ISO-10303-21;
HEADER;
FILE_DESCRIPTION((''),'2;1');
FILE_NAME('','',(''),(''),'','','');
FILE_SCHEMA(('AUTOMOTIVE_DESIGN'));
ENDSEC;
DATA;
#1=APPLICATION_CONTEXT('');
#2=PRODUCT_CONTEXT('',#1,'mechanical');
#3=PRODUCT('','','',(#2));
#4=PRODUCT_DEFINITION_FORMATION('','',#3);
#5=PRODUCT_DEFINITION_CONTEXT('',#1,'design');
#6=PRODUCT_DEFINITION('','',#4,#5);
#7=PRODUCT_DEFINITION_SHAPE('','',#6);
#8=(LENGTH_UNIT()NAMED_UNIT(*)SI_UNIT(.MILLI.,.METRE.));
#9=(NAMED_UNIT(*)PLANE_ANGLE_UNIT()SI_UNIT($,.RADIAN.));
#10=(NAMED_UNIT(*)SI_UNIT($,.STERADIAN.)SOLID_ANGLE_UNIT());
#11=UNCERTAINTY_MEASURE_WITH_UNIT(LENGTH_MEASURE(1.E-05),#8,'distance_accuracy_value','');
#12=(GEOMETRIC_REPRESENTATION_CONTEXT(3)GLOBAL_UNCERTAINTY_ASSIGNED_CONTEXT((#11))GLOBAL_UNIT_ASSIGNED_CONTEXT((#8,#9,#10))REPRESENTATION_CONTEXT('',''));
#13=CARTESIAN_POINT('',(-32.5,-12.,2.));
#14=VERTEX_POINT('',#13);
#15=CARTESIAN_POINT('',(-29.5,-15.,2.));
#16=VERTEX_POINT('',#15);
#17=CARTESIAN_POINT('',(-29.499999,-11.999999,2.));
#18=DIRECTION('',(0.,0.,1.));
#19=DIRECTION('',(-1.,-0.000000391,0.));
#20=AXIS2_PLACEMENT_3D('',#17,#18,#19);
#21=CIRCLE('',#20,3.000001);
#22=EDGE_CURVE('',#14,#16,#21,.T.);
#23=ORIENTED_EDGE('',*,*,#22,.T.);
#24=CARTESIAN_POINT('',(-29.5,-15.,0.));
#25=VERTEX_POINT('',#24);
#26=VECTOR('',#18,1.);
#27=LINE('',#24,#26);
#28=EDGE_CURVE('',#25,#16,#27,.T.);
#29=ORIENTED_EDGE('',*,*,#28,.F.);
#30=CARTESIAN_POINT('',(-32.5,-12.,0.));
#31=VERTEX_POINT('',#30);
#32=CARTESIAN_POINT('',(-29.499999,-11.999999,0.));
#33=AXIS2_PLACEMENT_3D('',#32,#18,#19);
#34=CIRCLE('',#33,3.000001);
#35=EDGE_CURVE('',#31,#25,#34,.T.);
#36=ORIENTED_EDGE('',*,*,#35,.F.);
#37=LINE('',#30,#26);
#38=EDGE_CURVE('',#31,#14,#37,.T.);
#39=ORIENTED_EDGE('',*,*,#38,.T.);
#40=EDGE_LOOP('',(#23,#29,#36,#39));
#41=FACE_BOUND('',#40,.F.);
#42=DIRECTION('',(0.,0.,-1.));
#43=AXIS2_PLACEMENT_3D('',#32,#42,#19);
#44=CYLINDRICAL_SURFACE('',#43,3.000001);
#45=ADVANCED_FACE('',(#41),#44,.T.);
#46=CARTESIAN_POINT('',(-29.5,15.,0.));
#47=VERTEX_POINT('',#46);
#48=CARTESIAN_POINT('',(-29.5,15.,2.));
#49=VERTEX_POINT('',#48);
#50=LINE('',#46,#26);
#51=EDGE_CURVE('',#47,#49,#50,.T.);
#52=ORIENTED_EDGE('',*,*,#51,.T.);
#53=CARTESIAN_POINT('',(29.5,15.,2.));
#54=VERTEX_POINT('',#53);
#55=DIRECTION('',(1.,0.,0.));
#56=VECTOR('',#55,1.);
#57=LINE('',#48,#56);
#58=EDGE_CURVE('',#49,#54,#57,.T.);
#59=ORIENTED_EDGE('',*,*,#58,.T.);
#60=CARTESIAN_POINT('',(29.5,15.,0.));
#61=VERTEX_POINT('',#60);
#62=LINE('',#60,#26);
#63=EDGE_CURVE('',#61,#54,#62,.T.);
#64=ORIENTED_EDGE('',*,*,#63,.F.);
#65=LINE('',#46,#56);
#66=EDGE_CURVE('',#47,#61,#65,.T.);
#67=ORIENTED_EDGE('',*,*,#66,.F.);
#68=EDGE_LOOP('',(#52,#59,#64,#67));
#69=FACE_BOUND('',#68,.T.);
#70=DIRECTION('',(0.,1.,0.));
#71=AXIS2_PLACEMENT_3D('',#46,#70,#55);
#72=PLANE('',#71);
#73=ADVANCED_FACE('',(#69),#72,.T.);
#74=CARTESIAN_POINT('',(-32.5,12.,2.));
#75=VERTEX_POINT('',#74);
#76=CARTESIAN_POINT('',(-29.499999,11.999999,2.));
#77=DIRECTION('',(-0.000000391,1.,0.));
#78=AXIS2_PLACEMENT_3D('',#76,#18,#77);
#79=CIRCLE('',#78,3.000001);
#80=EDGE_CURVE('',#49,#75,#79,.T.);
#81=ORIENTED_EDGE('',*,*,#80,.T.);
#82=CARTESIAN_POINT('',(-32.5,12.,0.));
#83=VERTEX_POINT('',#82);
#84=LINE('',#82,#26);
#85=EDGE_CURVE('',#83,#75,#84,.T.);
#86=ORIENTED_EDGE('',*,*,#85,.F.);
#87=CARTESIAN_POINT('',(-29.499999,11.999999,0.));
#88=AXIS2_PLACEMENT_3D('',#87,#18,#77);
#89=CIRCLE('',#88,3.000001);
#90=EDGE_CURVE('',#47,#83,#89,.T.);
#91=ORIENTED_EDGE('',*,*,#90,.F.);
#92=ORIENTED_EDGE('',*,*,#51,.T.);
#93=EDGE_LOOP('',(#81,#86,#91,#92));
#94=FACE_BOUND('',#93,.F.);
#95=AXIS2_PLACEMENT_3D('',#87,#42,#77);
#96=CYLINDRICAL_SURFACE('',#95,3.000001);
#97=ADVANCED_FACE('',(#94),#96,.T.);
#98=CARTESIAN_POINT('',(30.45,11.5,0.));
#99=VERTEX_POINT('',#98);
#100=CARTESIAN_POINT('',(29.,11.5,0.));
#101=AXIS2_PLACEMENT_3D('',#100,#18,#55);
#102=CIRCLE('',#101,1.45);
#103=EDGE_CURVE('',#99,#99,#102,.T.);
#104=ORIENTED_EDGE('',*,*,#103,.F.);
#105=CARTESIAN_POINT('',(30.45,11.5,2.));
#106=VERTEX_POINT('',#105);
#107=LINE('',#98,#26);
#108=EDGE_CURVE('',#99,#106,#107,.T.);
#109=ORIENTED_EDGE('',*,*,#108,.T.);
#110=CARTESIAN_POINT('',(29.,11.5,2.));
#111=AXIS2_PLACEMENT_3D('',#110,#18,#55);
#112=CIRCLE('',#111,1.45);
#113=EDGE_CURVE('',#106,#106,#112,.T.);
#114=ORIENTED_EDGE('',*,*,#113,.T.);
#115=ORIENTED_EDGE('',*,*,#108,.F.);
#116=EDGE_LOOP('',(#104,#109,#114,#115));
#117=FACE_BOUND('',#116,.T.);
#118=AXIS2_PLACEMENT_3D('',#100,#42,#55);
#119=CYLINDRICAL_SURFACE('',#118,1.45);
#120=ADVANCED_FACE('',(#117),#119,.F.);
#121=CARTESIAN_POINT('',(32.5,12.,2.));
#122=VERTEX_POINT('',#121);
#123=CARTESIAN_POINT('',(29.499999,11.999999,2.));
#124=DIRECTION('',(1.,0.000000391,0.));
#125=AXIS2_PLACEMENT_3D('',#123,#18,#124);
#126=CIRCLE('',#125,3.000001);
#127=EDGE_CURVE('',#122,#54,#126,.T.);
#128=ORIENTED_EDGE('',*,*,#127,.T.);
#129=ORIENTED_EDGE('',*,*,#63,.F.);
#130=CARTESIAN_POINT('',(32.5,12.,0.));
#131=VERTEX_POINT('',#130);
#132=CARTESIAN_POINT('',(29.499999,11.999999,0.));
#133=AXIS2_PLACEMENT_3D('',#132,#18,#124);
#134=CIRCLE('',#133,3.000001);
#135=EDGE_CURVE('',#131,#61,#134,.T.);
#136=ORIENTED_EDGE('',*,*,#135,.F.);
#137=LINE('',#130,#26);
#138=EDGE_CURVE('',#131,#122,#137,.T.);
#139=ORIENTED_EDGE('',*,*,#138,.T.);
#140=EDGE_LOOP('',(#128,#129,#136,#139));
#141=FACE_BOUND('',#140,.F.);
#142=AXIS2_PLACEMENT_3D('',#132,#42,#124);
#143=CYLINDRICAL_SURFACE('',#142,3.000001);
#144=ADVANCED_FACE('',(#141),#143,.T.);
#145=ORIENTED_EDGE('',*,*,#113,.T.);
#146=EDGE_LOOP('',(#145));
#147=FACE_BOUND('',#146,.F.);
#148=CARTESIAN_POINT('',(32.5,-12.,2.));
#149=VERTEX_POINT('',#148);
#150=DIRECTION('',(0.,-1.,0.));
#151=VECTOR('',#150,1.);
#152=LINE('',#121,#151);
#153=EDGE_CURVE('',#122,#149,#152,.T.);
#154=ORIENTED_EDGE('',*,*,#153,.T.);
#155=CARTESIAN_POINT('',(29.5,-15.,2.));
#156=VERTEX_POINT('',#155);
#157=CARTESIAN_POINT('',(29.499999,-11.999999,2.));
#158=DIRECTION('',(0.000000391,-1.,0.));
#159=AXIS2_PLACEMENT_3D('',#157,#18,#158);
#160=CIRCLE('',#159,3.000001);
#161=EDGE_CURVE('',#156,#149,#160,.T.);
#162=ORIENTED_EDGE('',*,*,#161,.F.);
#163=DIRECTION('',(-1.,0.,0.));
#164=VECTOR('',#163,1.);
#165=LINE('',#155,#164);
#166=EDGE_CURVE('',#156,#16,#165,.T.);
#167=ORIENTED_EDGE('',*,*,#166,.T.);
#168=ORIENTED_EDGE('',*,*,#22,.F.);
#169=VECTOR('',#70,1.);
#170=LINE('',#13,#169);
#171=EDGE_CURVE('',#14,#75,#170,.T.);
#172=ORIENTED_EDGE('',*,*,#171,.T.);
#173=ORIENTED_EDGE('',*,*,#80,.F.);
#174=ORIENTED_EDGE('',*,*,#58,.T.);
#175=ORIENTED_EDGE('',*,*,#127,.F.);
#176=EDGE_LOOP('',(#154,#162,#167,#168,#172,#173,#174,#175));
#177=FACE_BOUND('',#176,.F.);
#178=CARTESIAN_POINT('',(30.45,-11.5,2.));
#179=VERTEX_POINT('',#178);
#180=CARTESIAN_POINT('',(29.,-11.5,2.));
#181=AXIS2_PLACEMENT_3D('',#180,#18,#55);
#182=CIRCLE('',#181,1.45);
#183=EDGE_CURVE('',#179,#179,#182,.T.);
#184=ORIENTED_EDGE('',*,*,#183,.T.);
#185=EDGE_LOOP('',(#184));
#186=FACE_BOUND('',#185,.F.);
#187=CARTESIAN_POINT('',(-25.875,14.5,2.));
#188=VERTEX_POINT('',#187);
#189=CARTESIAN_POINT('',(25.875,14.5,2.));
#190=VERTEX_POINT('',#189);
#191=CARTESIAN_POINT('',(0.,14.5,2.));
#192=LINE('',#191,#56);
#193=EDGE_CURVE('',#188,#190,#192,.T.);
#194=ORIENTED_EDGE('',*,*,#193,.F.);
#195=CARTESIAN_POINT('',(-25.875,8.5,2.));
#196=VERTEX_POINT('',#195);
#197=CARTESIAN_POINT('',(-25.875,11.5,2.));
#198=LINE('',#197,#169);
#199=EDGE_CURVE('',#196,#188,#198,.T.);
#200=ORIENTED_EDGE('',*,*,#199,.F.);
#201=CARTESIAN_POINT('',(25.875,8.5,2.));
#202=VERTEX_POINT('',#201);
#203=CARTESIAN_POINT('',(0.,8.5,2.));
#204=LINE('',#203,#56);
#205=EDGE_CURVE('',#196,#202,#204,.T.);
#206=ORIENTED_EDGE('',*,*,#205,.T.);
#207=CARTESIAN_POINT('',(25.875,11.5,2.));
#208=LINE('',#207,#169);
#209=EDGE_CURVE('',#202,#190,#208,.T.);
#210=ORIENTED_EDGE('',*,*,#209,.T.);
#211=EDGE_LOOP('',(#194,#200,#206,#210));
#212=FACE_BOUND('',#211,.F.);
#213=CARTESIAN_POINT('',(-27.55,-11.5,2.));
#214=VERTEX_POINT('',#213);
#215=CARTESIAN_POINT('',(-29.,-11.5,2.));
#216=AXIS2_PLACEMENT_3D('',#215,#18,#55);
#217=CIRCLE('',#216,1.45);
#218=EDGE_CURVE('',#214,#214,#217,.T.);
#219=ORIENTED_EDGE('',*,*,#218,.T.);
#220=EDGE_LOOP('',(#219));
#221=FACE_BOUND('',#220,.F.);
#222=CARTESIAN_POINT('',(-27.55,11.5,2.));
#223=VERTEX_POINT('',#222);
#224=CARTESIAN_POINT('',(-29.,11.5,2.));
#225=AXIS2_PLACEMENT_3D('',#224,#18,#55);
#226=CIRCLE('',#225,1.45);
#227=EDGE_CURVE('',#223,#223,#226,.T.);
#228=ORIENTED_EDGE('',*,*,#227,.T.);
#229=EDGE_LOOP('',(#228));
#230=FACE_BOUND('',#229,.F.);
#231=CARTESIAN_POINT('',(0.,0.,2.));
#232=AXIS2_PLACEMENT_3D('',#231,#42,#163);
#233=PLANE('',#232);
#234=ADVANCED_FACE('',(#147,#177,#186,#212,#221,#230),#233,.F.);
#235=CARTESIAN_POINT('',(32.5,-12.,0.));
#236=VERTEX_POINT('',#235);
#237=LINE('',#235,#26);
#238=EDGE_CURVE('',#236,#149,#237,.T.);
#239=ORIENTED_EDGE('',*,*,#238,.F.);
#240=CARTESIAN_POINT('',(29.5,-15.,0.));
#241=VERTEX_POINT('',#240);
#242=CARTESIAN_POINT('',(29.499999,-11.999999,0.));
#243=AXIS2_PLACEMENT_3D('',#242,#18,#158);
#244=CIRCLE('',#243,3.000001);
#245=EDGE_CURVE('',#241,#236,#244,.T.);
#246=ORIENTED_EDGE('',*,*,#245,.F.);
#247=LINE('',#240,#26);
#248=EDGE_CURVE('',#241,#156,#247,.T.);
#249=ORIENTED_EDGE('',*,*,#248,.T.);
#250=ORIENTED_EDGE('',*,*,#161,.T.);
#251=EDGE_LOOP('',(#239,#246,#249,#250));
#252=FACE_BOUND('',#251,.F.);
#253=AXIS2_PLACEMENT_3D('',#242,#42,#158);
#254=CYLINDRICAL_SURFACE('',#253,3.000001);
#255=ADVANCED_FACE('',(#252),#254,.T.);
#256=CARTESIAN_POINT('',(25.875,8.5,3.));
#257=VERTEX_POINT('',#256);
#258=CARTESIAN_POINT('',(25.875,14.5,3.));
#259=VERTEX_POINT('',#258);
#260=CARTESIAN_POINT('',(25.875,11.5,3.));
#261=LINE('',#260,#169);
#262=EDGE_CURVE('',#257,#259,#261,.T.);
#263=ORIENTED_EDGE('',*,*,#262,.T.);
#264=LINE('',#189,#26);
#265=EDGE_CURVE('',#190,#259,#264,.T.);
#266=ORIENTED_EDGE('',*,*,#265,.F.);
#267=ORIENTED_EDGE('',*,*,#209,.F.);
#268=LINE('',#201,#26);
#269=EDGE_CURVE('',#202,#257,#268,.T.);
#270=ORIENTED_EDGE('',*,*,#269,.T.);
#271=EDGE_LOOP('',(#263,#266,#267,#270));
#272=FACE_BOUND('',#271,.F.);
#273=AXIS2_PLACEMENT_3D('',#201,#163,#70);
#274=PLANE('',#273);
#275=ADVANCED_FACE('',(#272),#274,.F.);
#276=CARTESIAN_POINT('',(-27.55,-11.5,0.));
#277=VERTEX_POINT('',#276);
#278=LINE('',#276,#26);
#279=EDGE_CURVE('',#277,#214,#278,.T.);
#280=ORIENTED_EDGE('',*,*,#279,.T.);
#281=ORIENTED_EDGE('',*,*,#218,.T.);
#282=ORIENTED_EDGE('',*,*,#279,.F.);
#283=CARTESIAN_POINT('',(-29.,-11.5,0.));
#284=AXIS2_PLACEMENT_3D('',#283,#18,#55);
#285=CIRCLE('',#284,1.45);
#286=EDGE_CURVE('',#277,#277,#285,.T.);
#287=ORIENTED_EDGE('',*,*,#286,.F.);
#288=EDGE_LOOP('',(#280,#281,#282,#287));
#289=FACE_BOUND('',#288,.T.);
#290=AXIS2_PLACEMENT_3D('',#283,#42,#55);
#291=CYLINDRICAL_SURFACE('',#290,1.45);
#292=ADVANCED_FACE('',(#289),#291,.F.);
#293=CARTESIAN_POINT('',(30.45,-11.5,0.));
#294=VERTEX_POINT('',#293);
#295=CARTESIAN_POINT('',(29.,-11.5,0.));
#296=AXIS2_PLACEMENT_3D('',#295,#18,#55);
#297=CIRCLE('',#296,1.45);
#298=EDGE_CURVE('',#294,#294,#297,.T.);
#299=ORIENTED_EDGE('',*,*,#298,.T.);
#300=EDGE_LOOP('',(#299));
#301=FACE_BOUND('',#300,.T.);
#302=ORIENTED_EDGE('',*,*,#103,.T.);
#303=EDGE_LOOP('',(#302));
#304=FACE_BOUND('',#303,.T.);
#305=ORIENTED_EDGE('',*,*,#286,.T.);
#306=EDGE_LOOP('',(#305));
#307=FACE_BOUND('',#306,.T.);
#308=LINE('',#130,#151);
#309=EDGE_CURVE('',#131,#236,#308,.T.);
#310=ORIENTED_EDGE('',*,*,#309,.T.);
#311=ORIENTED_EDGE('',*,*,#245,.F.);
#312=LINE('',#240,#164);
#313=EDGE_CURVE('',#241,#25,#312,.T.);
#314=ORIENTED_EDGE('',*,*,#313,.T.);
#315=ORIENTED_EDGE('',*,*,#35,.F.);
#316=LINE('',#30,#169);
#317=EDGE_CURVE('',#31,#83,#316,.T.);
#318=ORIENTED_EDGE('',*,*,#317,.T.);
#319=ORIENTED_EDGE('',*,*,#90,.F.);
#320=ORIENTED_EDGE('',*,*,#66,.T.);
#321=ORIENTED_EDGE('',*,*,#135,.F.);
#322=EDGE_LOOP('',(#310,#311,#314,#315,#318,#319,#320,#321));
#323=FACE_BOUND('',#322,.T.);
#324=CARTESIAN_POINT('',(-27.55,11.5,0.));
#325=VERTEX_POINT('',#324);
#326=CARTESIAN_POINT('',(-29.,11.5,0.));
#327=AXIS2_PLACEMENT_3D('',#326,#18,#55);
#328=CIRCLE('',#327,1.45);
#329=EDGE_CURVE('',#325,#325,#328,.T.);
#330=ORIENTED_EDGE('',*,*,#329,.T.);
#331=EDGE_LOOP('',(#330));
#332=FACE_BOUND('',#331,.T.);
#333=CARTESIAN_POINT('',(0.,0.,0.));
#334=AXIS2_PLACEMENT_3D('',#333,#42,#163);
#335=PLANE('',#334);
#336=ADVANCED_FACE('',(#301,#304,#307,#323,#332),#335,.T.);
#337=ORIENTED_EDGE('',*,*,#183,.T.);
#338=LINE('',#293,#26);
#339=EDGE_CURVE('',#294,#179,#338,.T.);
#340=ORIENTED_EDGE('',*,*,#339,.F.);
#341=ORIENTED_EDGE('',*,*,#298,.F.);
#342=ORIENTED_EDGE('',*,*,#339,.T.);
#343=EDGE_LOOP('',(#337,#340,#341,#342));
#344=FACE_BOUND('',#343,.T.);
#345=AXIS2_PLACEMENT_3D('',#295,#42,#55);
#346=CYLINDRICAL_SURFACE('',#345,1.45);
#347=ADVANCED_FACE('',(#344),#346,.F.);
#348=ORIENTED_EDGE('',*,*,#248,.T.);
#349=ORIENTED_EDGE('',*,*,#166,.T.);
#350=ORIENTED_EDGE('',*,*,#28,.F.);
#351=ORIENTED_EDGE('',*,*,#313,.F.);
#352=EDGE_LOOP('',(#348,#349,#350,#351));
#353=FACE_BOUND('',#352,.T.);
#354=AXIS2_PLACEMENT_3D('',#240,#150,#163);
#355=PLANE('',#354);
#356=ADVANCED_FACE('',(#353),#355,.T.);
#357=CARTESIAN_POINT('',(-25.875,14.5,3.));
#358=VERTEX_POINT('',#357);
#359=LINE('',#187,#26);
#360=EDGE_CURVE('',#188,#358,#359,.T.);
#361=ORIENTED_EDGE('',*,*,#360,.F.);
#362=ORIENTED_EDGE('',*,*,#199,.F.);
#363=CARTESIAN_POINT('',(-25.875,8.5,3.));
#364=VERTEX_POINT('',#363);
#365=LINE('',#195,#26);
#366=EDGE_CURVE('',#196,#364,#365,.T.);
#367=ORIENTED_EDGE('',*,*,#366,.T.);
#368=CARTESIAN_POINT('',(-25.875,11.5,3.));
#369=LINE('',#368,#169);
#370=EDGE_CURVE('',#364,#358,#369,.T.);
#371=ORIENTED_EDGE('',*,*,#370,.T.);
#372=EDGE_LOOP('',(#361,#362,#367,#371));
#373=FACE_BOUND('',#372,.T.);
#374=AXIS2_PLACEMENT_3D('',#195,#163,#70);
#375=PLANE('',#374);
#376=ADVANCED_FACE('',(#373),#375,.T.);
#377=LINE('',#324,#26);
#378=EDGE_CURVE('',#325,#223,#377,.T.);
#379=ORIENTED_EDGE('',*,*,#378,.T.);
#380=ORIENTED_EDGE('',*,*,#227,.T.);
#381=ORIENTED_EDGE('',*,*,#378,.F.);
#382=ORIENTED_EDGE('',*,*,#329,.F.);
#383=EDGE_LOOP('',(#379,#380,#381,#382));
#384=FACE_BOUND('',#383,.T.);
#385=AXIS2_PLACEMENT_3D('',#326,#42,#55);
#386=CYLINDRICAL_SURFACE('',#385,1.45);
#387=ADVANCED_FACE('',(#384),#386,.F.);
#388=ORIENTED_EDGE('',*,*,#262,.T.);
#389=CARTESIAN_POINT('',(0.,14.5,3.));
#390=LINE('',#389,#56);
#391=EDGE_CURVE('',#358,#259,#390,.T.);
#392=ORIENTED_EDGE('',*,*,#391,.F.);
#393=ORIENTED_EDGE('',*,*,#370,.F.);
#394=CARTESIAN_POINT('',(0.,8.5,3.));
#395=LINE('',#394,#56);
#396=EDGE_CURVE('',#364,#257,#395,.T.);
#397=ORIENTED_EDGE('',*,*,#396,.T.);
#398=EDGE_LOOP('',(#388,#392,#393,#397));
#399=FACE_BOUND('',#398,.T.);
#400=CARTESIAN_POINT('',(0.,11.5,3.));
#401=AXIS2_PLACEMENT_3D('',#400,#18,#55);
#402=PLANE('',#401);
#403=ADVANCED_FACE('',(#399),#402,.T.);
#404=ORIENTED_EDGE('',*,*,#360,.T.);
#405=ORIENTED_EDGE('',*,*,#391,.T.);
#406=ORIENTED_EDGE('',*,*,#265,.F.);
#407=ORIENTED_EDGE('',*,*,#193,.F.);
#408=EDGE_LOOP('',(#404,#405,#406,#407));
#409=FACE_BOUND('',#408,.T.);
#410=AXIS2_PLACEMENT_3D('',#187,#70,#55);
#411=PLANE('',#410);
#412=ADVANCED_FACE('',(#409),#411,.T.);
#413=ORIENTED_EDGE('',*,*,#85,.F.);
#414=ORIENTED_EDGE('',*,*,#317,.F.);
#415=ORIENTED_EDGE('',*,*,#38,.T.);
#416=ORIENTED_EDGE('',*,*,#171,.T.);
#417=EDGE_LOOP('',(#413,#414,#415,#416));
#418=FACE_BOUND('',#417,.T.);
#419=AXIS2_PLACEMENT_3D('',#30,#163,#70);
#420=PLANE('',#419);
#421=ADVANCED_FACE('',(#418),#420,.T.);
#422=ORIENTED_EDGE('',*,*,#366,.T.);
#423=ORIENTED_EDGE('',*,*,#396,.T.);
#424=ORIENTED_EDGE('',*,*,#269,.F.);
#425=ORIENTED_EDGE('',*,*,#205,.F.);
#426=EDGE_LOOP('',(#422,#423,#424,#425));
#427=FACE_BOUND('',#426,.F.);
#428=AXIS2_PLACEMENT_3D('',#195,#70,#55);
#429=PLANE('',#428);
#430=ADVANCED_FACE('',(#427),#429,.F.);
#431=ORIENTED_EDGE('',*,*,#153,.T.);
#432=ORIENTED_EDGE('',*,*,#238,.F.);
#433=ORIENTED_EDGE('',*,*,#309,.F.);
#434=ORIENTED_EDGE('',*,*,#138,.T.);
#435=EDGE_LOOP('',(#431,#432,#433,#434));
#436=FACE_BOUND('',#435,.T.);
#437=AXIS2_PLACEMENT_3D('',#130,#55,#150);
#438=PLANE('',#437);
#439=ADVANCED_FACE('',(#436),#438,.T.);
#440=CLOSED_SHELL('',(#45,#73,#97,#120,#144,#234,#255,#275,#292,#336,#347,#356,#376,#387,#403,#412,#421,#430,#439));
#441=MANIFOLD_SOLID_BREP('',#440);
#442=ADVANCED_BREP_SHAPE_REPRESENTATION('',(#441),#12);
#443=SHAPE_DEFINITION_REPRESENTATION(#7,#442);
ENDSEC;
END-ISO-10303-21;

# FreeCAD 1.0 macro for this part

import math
import FreeCAD as App
import Part
import Sketcher
from FreeCAD import Vector


def add_polygon(sketch, points):
    """Adds a closed chain of lines whose ends are joined by coincident constraints."""
    first, n = sketch.GeometryCount, len(points)
    for a, b in zip(points, points[1:] + points[:1]):
        sketch.addGeometry(Part.LineSegment(App.Vector(*a, 0), App.Vector(*b, 0)), False)
    for i in range(n):
        sketch.addConstraint(Sketcher.Constraint("Coincident", first + i, 2, first + (i + 1) % n, 1))

doc = App.newDocument("Part")
params = doc.addObject("Spreadsheet::Sheet", "Params")
for row, (alias, value) in enumerate([
    ("sketch1_radius", "3.000001 mm"),
    ("sketch1_diameter", "2.9 mm"),
    ("sketch1_width", "59 mm"),
    ("sketch1_height", "24 mm"),
    ("pad1_length", "2 mm"),
    ("sketch2_height", "6 mm"),
    ("sketch2_width", "51.75 mm"),
    ("pad2_length", "1 mm"),
], start=1):
    params.set(f"A{row}", alias)
    params.set(f"B{row}", "=" + value)
    params.setAlias(f"B{row}", alias)

body = doc.addObject("PartDesign::Body", "Body")

# Sketch on XY plane
sketch1 = doc.addObject("Sketcher::SketchObject", "Sketch")
body.addObject(sketch1)
sketch1.AttachmentSupport = (doc.XY_Plane, [""])
sketch1.MapMode = "FlatFace"
sketch1.addGeometry([
    Part.LineSegment(Vector(29.5, 15, 0), Vector(-29.5, 15, 0)),  # 0
    Part.ArcOfCircle(Part.Circle(Vector(-29.5, 12, 0), Vector(0, 0, 1), 3), math.radians(90), math.radians(180)),  # 1
    Part.LineSegment(Vector(-32.5, 12, 0), Vector(-32.5, -12, 0)),  # 2
    Part.ArcOfCircle(Part.Circle(Vector(-29.5, -12, 0), Vector(0, 0, 1), 3), math.radians(-180), math.radians(-90)),  # 3
    Part.LineSegment(Vector(-29.5, -15, 0), Vector(29.5, -15, 0)),  # 4
    Part.ArcOfCircle(Part.Circle(Vector(29.5, -12, 0), Vector(0, 0, 1), 3), math.radians(-90), math.radians(0)),  # 5
    Part.LineSegment(Vector(32.5, -12, 0), Vector(32.5, 12, 0)),  # 6
    Part.ArcOfCircle(Part.Circle(Vector(29.5, 12, 0), Vector(0, 0, 1), 3), math.radians(0), math.radians(90)),  # 7
    Part.Circle(Vector(29, -11.5, 0), Vector(0, 0, 1), 1.4),  # 8
    Part.Circle(Vector(-29, -11.5, 0), Vector(0, 0, 1), 1.4),  # 9
    Part.Circle(Vector(29, 11.5, 0), Vector(0, 0, 1), 1.4),  # 10
    Part.Circle(Vector(-29, 11.5, 0), Vector(0, 0, 1), 1.4),  # 11
], False)
sketch1.addConstraint([
    Sketcher.Constraint("Tangent", 0, 2, 1, 1),
    Sketcher.Constraint("Tangent", 1, 2, 2, 1),
    Sketcher.Constraint("Tangent", 2, 2, 3, 1),
    Sketcher.Constraint("Tangent", 3, 2, 4, 1),
    Sketcher.Constraint("Tangent", 4, 2, 5, 1),
    Sketcher.Constraint("Tangent", 5, 2, 6, 1),
    Sketcher.Constraint("Tangent", 6, 2, 7, 1),
    Sketcher.Constraint("Tangent", 7, 2, 0, 1),
    Sketcher.Constraint("Horizontal", 0),
    Sketcher.Constraint("Vertical", 2),
    Sketcher.Constraint("Horizontal", 4),
    Sketcher.Constraint("Vertical", 6),
    Sketcher.Constraint("Equal", 1, 3),
    Sketcher.Constraint("Equal", 3, 5),
    Sketcher.Constraint("Equal", 5, 7),
    Sketcher.Constraint("Equal", 8, 9),
    Sketcher.Constraint("Equal", 9, 10),
    Sketcher.Constraint("Equal", 10, 11),
    Sketcher.Constraint("Symmetric", 1, 3, 5, 3, -1, 1),
    Sketcher.Constraint("Symmetric", 9, 3, 10, 3, -1, 1),
    Sketcher.Constraint("Symmetric", 8, 3, 11, 3, -1, 1),
    Sketcher.Constraint("Symmetric", 8, 3, 9, 3, -2),
    Sketcher.Constraint("Radius", 1, 3.000001),
    Sketcher.Constraint("Diameter", 8, 2.9),
    Sketcher.Constraint("DistanceX", 0, 2, 0, 1, 59.0),
    Sketcher.Constraint("DistanceY", 2, 2, 2, 1, 24.0),
    Sketcher.Constraint("DistanceX", -1, 1, 8, 3, 29.0),
    Sketcher.Constraint("DistanceY", 8, 3, 10, 3, 23.0),
])
sketch1.setExpression("Constraints[22]", "Params.sketch1_radius")
sketch1.setExpression("Constraints[23]", "Params.sketch1_diameter")
sketch1.setExpression("Constraints[24]", "Params.sketch1_width")
sketch1.setExpression("Constraints[25]", "Params.sketch1_height")
pad1 = doc.addObject("PartDesign::Pad", "Pad")
body.addObject(pad1)
pad1.Profile = sketch1
pad1.setExpression("Length", "Params.pad1_length")

# Sketch on XY plane
sketch2 = doc.addObject("Sketcher::SketchObject", "Sketch001")
body.addObject(sketch2)
sketch2.AttachmentSupport = (doc.XY_Plane, [""])
sketch2.MapMode = "FlatFace"
sketch2.AttachmentOffset = App.Placement(Vector(0, 0, 2), App.Rotation())
add_polygon(sketch2, [(-26, 14), (-26, 8), (26, 8), (26, 14)])  # lines 0-3
sketch2.addConstraint([
    Sketcher.Constraint("Vertical", 0),
    Sketcher.Constraint("Horizontal", 1),
    Sketcher.Constraint("Vertical", 2),
    Sketcher.Constraint("Horizontal", 3),
    Sketcher.Constraint("DistanceY", 0, 2, 0, 1, 6.0),
    Sketcher.Constraint("DistanceX", 1, 1, 1, 2, 51.75),
    Sketcher.Constraint("DistanceY", -1, 1, 0, 2, 8.5),
    Sketcher.Constraint("DistanceX", 0, 2, -1, 1, 25.875),
])
sketch2.setExpression("Constraints[8]", "Params.sketch2_height")
sketch2.setExpression("Constraints[9]", "Params.sketch2_width")
pad2 = doc.addObject("PartDesign::Pad", "Pad001")
body.addObject(pad2)
pad2.Profile = sketch2
pad2.setExpression("Length", "Params.pad2_length")

doc.recompute()
